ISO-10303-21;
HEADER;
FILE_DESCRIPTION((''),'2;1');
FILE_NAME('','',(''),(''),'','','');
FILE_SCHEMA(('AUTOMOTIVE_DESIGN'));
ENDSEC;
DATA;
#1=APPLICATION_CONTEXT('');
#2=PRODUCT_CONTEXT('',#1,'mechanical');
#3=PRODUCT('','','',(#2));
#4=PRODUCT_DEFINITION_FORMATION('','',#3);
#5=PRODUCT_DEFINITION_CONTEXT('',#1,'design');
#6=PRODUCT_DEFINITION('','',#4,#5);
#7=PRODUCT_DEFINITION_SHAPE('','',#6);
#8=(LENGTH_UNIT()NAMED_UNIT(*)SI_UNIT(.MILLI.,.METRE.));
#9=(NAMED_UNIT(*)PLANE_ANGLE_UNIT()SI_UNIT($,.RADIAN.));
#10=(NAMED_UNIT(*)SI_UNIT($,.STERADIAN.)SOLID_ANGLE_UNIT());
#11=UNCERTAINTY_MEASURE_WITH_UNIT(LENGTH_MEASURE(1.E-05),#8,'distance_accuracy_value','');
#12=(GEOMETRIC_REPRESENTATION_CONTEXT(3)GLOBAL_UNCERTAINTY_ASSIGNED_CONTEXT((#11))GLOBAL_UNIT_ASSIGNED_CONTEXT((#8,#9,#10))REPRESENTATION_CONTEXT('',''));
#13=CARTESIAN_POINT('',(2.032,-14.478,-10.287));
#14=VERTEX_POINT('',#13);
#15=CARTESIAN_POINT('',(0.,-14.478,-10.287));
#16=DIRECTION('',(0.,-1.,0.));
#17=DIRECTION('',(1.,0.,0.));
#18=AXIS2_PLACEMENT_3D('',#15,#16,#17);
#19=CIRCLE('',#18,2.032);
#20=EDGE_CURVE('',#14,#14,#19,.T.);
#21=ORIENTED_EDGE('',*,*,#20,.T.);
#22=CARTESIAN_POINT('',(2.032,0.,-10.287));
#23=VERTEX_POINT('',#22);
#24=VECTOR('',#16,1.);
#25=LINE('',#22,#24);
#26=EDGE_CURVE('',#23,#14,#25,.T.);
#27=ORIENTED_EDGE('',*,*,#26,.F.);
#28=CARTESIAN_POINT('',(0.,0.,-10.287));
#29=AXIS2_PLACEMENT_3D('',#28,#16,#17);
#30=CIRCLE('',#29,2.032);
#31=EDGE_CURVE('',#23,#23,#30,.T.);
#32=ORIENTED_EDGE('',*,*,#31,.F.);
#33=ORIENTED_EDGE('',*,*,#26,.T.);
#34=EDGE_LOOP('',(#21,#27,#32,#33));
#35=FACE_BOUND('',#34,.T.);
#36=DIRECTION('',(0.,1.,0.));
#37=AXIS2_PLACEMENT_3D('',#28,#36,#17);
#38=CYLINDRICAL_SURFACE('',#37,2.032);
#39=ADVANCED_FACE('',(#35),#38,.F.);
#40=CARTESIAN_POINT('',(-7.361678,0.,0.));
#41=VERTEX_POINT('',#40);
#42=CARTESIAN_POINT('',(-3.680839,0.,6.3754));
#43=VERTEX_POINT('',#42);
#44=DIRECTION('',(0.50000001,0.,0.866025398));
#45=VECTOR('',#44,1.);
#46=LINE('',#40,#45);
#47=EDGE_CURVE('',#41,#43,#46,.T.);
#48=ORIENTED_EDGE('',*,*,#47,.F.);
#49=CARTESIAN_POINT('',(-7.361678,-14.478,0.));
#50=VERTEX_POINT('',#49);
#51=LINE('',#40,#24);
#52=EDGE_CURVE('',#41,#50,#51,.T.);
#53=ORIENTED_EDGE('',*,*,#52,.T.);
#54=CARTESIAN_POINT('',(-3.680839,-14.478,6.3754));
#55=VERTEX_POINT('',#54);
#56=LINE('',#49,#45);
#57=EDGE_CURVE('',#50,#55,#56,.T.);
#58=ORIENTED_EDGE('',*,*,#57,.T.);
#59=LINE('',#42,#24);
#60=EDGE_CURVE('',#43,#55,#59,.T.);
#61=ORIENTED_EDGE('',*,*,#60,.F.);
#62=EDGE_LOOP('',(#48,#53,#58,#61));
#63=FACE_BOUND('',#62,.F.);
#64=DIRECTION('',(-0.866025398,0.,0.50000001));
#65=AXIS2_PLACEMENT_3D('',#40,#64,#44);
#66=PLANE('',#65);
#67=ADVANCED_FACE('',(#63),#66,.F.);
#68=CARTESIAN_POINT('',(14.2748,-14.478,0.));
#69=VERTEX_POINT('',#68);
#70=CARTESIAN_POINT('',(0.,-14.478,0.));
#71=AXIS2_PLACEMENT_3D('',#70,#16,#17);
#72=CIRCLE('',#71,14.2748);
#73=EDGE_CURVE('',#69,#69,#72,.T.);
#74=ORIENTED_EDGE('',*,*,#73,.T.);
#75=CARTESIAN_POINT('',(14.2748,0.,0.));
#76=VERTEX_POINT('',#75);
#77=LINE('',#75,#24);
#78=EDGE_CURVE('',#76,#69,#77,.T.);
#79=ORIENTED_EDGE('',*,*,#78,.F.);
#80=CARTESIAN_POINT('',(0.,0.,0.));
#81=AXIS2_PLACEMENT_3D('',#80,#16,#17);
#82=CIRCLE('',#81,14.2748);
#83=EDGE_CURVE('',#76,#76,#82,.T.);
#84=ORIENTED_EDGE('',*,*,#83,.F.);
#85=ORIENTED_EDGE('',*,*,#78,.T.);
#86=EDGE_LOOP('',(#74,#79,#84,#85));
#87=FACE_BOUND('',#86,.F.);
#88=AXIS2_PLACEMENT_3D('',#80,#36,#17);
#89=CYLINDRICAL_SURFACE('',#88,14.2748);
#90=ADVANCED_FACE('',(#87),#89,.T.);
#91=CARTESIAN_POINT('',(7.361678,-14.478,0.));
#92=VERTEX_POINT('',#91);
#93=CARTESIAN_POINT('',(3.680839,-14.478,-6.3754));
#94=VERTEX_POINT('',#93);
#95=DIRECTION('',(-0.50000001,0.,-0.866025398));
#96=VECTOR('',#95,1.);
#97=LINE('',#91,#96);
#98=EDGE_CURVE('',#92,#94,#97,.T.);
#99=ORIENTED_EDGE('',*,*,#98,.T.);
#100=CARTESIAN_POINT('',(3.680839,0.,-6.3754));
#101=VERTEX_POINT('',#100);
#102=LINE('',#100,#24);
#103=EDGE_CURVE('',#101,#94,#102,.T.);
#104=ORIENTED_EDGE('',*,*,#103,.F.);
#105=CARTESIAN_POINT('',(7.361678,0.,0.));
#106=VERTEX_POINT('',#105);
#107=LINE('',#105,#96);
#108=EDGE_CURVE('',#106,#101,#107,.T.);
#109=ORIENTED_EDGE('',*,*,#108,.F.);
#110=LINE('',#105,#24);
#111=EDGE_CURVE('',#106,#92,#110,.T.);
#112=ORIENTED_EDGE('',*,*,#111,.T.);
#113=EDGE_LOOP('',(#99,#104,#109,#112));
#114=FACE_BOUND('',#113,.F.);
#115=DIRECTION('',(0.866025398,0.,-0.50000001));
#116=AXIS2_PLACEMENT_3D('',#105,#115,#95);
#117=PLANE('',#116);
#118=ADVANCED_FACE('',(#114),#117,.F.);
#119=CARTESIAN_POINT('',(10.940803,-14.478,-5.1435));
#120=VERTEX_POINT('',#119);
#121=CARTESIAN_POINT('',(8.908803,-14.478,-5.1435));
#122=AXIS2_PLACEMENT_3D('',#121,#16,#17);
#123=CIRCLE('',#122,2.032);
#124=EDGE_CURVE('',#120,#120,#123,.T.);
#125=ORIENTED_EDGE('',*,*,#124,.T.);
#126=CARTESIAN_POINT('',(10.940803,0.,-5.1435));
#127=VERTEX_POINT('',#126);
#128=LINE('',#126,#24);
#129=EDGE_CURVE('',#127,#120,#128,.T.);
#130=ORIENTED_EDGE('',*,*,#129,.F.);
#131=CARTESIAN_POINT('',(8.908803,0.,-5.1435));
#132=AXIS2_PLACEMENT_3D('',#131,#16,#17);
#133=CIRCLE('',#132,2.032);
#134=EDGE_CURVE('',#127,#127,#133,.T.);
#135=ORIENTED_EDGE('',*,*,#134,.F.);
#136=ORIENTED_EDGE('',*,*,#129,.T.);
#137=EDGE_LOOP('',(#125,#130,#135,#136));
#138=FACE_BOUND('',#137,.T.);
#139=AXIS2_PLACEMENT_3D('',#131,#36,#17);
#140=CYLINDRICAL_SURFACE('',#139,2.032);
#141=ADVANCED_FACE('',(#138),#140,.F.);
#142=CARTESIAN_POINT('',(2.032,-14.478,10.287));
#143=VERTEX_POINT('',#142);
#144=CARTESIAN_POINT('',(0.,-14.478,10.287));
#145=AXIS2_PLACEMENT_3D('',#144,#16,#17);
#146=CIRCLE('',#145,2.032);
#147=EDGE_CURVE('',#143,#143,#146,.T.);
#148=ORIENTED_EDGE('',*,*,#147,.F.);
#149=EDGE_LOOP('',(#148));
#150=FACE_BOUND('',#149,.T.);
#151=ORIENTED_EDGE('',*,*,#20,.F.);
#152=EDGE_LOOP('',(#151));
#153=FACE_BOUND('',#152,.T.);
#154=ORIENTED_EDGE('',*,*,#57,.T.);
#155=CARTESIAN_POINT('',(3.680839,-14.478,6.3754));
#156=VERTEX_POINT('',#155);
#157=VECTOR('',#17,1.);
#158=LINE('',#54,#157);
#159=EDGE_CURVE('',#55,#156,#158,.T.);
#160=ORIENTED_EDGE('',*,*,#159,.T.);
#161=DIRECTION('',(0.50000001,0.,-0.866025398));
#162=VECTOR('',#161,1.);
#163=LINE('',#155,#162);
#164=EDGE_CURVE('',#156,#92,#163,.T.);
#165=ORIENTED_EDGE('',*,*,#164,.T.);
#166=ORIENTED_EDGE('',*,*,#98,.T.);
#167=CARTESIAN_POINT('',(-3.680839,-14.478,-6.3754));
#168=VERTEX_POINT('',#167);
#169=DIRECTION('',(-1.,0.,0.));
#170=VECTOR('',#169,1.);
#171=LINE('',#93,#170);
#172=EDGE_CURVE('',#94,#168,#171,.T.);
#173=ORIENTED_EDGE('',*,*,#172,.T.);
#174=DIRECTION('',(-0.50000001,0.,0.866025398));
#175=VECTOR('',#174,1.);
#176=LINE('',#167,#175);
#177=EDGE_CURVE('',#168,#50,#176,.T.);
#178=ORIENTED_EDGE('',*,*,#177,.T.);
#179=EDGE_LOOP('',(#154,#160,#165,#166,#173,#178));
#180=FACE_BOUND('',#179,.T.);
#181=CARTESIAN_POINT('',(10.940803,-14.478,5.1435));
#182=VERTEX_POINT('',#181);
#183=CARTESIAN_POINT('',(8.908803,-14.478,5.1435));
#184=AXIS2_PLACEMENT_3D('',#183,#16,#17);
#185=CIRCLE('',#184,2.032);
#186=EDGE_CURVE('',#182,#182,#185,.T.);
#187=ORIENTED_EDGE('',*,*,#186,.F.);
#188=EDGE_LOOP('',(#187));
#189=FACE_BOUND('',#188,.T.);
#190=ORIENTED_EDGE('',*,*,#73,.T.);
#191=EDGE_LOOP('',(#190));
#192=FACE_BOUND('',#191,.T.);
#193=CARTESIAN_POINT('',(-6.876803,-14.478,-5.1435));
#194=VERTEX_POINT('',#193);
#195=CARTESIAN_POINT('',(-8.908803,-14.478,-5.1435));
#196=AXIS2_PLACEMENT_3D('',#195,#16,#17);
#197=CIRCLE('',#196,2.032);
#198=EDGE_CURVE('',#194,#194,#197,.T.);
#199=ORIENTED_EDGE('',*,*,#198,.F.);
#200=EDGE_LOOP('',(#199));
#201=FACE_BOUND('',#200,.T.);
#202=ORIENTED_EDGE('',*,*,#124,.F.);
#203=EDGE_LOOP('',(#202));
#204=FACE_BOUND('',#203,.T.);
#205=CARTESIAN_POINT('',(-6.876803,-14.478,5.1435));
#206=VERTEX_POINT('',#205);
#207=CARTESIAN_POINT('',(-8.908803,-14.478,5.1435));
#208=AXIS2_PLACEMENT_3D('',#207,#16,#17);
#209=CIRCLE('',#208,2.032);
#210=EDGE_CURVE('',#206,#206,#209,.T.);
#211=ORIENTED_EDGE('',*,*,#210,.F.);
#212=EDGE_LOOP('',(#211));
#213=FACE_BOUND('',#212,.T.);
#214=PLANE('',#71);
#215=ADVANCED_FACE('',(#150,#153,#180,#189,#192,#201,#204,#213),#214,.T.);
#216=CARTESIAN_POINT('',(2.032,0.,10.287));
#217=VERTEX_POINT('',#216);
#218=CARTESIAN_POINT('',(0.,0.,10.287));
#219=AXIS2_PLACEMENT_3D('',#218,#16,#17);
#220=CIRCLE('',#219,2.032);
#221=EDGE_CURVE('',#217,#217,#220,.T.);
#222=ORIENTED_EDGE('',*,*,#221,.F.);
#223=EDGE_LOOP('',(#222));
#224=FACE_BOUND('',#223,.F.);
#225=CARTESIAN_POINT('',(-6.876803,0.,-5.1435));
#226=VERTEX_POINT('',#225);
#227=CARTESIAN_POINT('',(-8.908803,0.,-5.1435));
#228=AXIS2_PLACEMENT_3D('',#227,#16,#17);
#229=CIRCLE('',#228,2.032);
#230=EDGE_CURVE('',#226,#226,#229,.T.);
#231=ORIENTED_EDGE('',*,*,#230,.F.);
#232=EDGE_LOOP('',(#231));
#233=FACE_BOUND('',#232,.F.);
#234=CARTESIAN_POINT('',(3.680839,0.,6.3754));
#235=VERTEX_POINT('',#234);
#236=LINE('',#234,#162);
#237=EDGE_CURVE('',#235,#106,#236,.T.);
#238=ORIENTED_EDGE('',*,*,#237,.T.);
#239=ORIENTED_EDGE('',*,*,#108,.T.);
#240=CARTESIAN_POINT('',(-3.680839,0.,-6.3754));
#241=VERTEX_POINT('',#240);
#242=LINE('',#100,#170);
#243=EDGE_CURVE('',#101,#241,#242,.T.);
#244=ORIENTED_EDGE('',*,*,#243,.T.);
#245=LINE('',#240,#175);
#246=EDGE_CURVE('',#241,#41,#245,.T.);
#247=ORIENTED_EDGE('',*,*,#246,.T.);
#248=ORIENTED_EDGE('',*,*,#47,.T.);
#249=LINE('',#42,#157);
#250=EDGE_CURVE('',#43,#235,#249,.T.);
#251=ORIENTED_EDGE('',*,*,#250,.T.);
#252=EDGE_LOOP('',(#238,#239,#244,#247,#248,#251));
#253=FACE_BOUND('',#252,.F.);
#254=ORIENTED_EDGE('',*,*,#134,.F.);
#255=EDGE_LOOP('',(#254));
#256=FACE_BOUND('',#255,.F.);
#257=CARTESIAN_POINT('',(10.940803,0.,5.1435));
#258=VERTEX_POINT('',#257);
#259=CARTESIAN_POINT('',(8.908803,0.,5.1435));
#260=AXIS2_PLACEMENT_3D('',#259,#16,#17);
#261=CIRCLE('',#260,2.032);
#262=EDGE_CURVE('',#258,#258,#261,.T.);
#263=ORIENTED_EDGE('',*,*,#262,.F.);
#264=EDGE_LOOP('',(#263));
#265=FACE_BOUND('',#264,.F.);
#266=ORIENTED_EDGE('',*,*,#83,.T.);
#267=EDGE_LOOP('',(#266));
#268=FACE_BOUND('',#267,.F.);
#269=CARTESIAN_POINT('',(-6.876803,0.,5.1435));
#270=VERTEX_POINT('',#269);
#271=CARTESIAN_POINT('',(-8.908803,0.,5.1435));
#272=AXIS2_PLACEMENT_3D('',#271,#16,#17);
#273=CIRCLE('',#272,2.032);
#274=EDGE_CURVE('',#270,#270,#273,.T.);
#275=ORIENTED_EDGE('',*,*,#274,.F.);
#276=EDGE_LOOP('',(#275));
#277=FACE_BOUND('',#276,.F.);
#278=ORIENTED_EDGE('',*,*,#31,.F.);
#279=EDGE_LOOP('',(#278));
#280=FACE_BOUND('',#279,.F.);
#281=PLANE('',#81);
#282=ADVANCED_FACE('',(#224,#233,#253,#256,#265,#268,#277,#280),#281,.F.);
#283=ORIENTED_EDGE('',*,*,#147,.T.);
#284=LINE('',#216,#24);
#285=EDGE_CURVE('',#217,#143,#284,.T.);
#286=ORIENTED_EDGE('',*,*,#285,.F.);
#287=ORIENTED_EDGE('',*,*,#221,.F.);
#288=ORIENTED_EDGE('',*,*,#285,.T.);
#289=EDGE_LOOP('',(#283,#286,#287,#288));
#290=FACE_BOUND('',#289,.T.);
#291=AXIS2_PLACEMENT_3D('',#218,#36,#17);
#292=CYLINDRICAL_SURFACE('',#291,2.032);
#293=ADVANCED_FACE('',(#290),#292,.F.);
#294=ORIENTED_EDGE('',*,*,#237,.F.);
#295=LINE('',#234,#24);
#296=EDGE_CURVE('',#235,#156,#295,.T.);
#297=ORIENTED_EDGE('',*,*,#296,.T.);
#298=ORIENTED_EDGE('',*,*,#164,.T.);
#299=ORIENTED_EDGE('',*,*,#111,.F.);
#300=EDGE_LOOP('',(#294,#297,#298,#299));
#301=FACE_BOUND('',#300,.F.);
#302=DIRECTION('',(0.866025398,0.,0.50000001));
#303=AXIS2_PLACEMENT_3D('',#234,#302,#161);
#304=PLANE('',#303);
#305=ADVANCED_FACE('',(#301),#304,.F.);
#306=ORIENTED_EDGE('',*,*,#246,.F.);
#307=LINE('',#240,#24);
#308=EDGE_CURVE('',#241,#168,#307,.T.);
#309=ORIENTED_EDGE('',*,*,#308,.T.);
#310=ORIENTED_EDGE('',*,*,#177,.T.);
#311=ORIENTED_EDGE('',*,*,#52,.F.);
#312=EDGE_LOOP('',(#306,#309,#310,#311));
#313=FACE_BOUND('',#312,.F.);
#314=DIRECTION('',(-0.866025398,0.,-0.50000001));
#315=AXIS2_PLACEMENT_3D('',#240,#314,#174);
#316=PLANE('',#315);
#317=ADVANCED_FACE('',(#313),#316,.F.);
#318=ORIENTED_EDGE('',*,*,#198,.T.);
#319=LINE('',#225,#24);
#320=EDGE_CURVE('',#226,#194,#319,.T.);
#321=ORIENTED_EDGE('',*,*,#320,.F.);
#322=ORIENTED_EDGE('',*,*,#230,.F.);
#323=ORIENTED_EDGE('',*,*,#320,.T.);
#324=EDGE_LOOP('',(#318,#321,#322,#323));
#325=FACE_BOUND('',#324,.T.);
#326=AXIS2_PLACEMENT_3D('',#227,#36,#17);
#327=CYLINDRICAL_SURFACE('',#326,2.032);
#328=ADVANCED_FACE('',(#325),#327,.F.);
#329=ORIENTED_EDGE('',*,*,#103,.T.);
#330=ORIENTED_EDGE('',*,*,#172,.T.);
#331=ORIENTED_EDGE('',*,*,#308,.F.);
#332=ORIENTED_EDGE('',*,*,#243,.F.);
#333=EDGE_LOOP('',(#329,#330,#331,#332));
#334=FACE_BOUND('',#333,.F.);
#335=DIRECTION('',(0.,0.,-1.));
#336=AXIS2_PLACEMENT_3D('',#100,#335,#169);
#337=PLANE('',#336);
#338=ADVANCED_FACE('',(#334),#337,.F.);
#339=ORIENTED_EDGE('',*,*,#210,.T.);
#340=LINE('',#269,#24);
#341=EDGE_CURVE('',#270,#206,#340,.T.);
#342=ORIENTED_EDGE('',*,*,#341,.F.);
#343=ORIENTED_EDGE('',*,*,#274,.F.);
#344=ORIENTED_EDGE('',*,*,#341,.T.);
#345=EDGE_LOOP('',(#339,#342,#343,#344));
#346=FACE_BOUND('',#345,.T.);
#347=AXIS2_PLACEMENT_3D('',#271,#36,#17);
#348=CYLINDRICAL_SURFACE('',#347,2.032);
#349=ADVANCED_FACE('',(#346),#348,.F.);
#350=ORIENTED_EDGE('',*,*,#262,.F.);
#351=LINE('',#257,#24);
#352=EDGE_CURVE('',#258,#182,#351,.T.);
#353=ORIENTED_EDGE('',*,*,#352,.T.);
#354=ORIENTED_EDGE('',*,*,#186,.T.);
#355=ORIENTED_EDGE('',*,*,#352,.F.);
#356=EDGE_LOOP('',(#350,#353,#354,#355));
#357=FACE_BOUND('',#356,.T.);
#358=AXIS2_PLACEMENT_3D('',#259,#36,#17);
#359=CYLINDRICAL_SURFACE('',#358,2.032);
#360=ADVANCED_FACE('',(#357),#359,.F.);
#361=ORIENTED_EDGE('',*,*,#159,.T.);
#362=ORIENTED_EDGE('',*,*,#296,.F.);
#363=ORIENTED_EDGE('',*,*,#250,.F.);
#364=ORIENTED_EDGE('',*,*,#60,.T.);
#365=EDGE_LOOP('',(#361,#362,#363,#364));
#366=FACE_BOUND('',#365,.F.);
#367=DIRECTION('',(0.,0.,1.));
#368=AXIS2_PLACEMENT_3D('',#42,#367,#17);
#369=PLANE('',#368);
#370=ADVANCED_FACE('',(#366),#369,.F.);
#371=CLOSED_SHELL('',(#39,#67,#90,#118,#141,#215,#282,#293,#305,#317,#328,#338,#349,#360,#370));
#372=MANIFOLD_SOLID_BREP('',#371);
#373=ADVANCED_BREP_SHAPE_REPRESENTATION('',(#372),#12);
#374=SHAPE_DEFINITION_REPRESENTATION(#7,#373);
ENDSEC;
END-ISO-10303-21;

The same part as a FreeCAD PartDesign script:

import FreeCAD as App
import Part
import Sketcher

V = App.Vector
Q = App.Units.Quantity

doc = App.newDocument("Part")
body = doc.addObject("PartDesign::Body", "Body")

# Sketch on XZ plane
sketch1 = doc.addObject("Sketcher::SketchObject", "Sketch")
body.addObject(sketch1)
sketch1.AttachmentSupport = (doc.XZ_Plane, [""])
sketch1.MapMode = "FlatFace"
sketch1.addGeometry(Part.Circle(V(0, 0, 0), V(0, 0, 1), 14.3), False)
sketch1.addGeometry(Part.Circle(V(0, -10.3, 0), V(0, 0, 1), 2), False)
sketch1.addGeometry(Part.Circle(V(-8.9, -5.1, 0), V(0, 0, 1), 2), False)
sketch1.addGeometry(Part.Circle(V(8.9, -5.1, 0), V(0, 0, 1), 2), False)
sketch1.addGeometry(Part.Circle(V(-8.9, 5.1, 0), V(0, 0, 1), 2), False)
sketch1.addGeometry(Part.LineSegment(V(-3.7, 6.4, 0), V(3.7, 6.4, 0)), False)
sketch1.addGeometry(Part.LineSegment(V(3.7, 6.4, 0), V(7.4, 0, 0)), False)
sketch1.addGeometry(Part.LineSegment(V(7.4, 0, 0), V(3.7, -6.4, 0)), False)
sketch1.addGeometry(Part.LineSegment(V(3.7, -6.4, 0), V(-3.7, -6.4, 0)), False)
sketch1.addGeometry(Part.LineSegment(V(-3.7, -6.4, 0), V(-7.4, 0, 0)), False)
sketch1.addGeometry(Part.LineSegment(V(-7.4, 0, 0), V(-3.7, 6.4, 0)), False)
sketch1.addGeometry(Part.Circle(V(0, 10.3, 0), V(0, 0, 1), 2), False)
sketch1.addGeometry(Part.Circle(V(8.9, 5.1, 0), V(0, 0, 1), 2), False)
sketch1.addConstraint(Sketcher.Constraint("Coincident", 5, 2, 6, 1))
sketch1.addConstraint(Sketcher.Constraint("Coincident", 6, 2, 7, 1))
sketch1.addConstraint(Sketcher.Constraint("Coincident", 7, 2, 8, 1))
sketch1.addConstraint(Sketcher.Constraint("Coincident", 8, 2, 9, 1))
sketch1.addConstraint(Sketcher.Constraint("Coincident", 9, 2, 10, 1))
sketch1.addConstraint(Sketcher.Constraint("Coincident", 10, 2, 5, 1))
sketch1.addConstraint(Sketcher.Constraint("Horizontal", 5))
sketch1.addConstraint(Sketcher.Constraint("Horizontal", 8))
sketch1.addConstraint(Sketcher.Constraint("Coincident", 0, 3, -1, 1))
sketch1.addConstraint(Sketcher.Constraint("Equal", 1, 2))
sketch1.addConstraint(Sketcher.Constraint("Equal", 2, 3))
sketch1.addConstraint(Sketcher.Constraint("Equal", 3, 4))
sketch1.addConstraint(Sketcher.Constraint("Equal", 4, 11))
sketch1.addConstraint(Sketcher.Constraint("Equal", 11, 12))
sketch1.addConstraint(Sketcher.Constraint("Symmetric", 3, 3, 4, 3, -1, 1))
sketch1.addConstraint(Sketcher.Constraint("Symmetric", 1, 3, 11, 3, -1, 1))
sketch1.addConstraint(Sketcher.Constraint("Symmetric", 2, 3, 12, 3, -1, 1))
sketch1.addConstraint(Sketcher.Constraint("Symmetric", 5, 2, 8, 2, -1, 1))
sketch1.addConstraint(Sketcher.Constraint("Symmetric", 6, 2, 9, 2, -1, 1))
sketch1.addConstraint(Sketcher.Constraint("Symmetric", 2, 3, 3, 3, -2))
sketch1.addConstraint(Sketcher.Constraint("PointOnObject", 1, 3, -2))
sketch1.addConstraint(Sketcher.Constraint("PointOnObject", 6, 2, -1))
sketch1.addConstraint(Sketcher.Constraint("Parallel", 7, 10))
sketch1.addConstraint(Sketcher.Constraint("Vertical", 5, 2, 7, 2))
sketch1.addConstraint(Sketcher.Constraint("Diameter", 1, Q("0.16 in")))
sketch1.addConstraint(Sketcher.Constraint("Diameter", 0, Q("1.124 in")))
sketch1.addConstraint(Sketcher.Constraint("Angle", 6, Q("-59.999999 deg")))
sketch1.addConstraint(Sketcher.Constraint("DistanceY", 1, 3, 11, 3, Q("0.81 in")))
sketch1.addConstraint(Sketcher.Constraint("DistanceY", -1, 1, 5, 2, Q("0.251 in")))
sketch1.addConstraint(Sketcher.Constraint("DistanceY", 2, 3, 4, 3, Q("0.405 in")))
sketch1.addConstraint(Sketcher.Constraint("DistanceX", 5, 1, 5, 2, Q("7.361678 mm")))
sketch1.addConstraint(Sketcher.Constraint("DistanceX", 2, 3, -1, 1, Q("8.908803 mm")))
pad1 = doc.addObject("PartDesign::Pad", "Pad")
body.addObject(pad1)
pad1.Profile = sketch1
pad1.Length = Q("0.57 in")

doc.recompute()
